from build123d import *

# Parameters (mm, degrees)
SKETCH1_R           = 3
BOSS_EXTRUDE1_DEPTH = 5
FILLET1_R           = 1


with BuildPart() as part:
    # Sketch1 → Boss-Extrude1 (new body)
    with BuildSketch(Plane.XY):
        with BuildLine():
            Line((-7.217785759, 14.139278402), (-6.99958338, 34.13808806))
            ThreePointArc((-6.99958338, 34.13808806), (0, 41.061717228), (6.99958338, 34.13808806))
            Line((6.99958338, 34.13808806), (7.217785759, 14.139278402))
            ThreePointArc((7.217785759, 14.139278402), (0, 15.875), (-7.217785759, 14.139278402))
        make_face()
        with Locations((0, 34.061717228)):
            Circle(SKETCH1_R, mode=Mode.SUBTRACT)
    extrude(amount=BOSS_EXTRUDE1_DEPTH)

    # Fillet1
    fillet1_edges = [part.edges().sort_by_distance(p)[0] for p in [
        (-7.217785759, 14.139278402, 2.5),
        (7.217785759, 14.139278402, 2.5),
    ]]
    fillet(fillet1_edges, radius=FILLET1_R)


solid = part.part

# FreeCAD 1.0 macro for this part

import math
import FreeCAD as App
import Part
import Sketcher
from FreeCAD import Vector


def edges_at(feature, points):
    """Names of the edges that pass closest to the given points."""
    edges = feature.Shape.Edges
    near = lambda p: min(range(len(edges)), key=lambda i: edges[i].distToShape(Part.Vertex(*p))[0])
    return sorted({f"Edge{near(p) + 1}" for p in points})

doc = App.newDocument("Part")
body = doc.addObject("PartDesign::Body", "Body")

# Sketch on XY plane
sketch1 = body.newObject("Sketcher::SketchObject", "Sketch")
sketch1.AttachmentSupport = (doc.getObject("XY_Plane"), [""])
sketch1.MapMode = "FlatFace"
sketch1.addGeometry([
    Part.LineSegment(Vector(-7, 34.1, 0), Vector(-7.2, 14.1, 0)),  # 0
    Part.ArcOfCircle(Part.Circle(Vector(0, 0, 0), Vector(0, 0, 1), 15.9), math.radians(63), math.radians(117)),  # 1
    Part.LineSegment(Vector(7.2, 14.1, 0), Vector(7, 34.1, 0)),  # 2
    Part.ArcOfCircle(Part.Circle(Vector(0, 34.1, 0), Vector(0, 0, 1), 7), math.radians(1), math.radians(179)),  # 3
    Part.Circle(Vector(0, 34.1, 0), Vector(0, 0, 1), 3),  # 4
], False)
sketch1.addConstraint([
    Sketcher.Constraint("Coincident", 0, 2, 1, 2),
    Sketcher.Constraint("Coincident", 1, 1, 2, 1),
    Sketcher.Constraint("Tangent", 2, 2, 3, 1),
    Sketcher.Constraint("Tangent", 3, 2, 0, 1),
    Sketcher.Constraint("Coincident", 1, 3, -1, 1),
    Sketcher.Constraint("Coincident", 4, 3, 3, 3),
    Sketcher.Constraint("Symmetric", 2, 2, 3, 2, -2),
    Sketcher.Constraint("Diameter", 4, 6.0),
    Sketcher.Constraint("Radius", 3, 7.0),
    Sketcher.Constraint("Distance", 0, 20.0),
    Sketcher.Constraint("Radius", 1, 15.875),
    Sketcher.Constraint("DistanceY", -1, 1, 0, 2, 14.139278),
])
pad1 = body.newObject("PartDesign::Pad", "Pad")
pad1.Profile = sketch1
pad1.Length = 5
doc.recompute()

fillet = body.newObject("PartDesign::Fillet", "Fillet")
fillet.Base = (pad1, edges_at(pad1, [(-7.218, 14.139, 2.5), (7.218, 14.139, 2.5)]))
fillet.Radius = 1

doc.recompute()
